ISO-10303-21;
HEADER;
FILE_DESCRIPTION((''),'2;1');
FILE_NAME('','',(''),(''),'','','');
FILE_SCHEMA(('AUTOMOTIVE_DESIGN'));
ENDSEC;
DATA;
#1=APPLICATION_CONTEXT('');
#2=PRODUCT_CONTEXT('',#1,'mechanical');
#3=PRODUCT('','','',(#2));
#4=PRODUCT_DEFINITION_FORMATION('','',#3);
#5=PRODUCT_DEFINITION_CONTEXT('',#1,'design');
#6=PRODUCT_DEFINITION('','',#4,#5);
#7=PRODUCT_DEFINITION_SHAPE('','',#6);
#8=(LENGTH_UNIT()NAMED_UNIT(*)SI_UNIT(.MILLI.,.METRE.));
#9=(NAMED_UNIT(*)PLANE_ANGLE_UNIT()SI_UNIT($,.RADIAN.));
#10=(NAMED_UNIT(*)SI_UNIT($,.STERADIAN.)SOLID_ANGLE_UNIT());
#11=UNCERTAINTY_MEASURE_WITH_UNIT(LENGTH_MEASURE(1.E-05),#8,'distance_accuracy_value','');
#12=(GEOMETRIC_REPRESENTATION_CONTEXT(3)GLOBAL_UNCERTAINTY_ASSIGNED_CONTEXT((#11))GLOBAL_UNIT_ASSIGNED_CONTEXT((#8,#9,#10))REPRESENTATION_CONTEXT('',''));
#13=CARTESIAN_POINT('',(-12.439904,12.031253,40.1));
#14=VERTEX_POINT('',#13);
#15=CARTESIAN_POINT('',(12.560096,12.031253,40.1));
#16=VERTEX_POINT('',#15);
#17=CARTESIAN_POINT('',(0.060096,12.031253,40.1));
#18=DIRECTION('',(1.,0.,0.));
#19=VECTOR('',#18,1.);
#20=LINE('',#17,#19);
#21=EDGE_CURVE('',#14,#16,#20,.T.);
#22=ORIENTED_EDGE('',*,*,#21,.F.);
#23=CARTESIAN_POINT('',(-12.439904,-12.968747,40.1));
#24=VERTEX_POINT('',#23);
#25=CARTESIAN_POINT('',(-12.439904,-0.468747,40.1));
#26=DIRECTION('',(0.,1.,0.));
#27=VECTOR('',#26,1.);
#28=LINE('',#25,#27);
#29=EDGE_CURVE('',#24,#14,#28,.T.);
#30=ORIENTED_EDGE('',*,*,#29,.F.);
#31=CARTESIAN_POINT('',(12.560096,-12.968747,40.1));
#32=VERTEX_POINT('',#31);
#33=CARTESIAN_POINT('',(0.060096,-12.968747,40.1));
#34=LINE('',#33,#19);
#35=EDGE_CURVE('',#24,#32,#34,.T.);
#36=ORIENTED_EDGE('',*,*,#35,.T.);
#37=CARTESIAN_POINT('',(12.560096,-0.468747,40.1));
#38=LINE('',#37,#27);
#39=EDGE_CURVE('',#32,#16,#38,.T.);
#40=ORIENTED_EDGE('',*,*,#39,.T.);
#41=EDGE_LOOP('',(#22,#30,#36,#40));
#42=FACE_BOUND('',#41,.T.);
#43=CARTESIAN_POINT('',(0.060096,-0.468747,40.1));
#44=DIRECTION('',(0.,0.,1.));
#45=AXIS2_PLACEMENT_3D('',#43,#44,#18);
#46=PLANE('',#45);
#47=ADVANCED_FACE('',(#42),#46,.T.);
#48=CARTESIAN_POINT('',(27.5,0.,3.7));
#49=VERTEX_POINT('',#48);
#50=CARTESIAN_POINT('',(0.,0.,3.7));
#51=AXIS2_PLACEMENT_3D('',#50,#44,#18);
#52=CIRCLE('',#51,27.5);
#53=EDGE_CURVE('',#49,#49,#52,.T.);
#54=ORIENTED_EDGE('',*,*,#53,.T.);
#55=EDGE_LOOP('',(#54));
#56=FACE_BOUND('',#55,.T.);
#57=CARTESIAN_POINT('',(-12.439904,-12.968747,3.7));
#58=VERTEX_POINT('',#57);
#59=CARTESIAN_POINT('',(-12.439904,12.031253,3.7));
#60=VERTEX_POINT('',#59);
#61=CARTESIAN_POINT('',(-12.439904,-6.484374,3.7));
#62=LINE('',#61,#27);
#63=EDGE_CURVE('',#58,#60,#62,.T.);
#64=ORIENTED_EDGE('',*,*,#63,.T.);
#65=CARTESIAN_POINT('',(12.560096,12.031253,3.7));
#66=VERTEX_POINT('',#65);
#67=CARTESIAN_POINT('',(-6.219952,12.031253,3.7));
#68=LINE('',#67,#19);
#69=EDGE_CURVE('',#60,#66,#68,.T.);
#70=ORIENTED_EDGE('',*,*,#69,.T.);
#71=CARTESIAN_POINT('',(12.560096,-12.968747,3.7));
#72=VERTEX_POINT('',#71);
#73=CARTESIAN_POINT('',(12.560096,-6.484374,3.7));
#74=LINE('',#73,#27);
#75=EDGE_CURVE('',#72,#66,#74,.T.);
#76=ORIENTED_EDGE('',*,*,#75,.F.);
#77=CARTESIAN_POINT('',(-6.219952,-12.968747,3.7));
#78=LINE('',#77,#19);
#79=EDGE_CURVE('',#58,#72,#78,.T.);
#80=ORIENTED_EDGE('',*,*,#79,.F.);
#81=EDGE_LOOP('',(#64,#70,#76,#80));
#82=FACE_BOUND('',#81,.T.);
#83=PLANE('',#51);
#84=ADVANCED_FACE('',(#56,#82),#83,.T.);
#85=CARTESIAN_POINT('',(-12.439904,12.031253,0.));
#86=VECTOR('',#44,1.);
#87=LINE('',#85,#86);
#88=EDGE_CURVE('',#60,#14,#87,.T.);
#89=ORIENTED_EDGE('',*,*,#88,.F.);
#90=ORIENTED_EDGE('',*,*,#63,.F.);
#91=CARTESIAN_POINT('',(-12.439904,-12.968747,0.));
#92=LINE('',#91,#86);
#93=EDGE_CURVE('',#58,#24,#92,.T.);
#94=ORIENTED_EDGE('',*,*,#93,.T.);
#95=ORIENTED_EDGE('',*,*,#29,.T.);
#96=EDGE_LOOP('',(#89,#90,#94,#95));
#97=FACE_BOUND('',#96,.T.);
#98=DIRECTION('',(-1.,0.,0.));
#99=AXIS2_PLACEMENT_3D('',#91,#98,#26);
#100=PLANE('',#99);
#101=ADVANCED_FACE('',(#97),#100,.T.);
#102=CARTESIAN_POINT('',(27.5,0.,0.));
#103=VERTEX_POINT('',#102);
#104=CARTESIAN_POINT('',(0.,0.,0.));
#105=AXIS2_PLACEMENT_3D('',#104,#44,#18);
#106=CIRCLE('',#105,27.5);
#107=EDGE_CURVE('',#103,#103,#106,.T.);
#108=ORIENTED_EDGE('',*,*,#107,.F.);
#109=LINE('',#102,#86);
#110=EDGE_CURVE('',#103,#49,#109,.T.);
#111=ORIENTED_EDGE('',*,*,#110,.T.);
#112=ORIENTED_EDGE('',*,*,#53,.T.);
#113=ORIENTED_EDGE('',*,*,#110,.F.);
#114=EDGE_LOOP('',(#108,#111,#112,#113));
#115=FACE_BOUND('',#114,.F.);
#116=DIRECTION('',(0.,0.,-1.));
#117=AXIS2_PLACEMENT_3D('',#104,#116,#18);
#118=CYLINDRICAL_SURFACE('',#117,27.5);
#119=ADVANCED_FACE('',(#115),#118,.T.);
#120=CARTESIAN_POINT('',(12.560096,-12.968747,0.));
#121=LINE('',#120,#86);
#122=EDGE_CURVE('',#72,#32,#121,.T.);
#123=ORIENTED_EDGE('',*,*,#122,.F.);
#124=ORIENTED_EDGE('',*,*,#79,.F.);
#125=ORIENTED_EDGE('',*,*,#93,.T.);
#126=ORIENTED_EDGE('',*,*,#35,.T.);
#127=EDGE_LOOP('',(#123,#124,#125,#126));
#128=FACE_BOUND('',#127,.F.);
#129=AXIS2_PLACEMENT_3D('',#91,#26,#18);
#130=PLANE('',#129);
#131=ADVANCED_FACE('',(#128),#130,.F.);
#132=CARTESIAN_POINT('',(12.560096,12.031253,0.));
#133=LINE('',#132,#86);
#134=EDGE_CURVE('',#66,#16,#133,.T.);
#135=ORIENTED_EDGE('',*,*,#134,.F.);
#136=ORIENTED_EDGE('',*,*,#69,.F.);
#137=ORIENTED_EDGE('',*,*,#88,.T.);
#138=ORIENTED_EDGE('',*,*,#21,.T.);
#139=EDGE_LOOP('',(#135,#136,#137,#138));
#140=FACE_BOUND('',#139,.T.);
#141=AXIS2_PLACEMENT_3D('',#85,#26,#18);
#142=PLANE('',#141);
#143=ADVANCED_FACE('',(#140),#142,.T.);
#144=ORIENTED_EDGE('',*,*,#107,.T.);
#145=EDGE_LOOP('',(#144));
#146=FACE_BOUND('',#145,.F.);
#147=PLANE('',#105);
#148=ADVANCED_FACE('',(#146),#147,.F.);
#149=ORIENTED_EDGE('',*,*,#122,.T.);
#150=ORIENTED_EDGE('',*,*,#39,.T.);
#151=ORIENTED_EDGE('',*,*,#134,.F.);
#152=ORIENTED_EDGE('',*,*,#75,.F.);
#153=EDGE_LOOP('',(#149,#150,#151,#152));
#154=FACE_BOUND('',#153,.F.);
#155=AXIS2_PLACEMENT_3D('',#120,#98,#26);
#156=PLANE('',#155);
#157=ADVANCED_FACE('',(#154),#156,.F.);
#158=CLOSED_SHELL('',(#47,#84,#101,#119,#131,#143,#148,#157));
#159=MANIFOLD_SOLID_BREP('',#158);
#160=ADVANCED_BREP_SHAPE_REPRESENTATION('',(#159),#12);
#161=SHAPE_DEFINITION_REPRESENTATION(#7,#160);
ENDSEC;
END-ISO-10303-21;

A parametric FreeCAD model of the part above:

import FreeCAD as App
import Part
import Sketcher
from FreeCAD import Vector
Q = App.Units.Quantity


def add_polygon(sketch, points):
    """Adds a closed chain of lines whose ends are joined by coincident constraints."""
    first, n = sketch.GeometryCount, len(points)
    for a, b in zip(points, points[1:] + points[:1]):
        sketch.addGeometry(Part.LineSegment(App.Vector(*a, 0), App.Vector(*b, 0)), False)
    for i in range(n):
        sketch.addConstraint(Sketcher.Constraint("Coincident", first + i, 2, first + (i + 1) % n, 1))

doc = App.newDocument("Part")
body = doc.addObject("PartDesign::Body", "Body")

# Sketch on XY plane
sketch1 = doc.addObject("Sketcher::SketchObject", "Sketch")
body.addObject(sketch1)
sketch1.AttachmentSupport = (doc.XY_Plane, [""])
sketch1.MapMode = "FlatFace"
add_polygon(sketch1, [(-12, 12), (-12, -13), (13, -13), (13, 12)])  # lines 0-3
sketch1.addConstraint(Sketcher.Constraint("Vertical", 0))
sketch1.addConstraint(Sketcher.Constraint("Horizontal", 1))
sketch1.addConstraint(Sketcher.Constraint("Vertical", 2))
sketch1.addConstraint(Sketcher.Constraint("Horizontal", 3))
sketch1.addConstraint(Sketcher.Constraint("Equal", 3, 0))
sketch1.addConstraint(Sketcher.Constraint("DistanceX", 1, 1, 1, 2, Q("25 mm")))
sketch1.addConstraint(Sketcher.Constraint("DistanceX", 0, 2, -1, 1, Q("12.439904 mm")))
sketch1.addConstraint(Sketcher.Constraint("DistanceY", 0, 2, -1, 1, Q("12.968747 mm")))
pad1 = doc.addObject("PartDesign::Pad", "Pad")
body.addObject(pad1)
pad1.Profile = sketch1
pad1.Length = 40.1

# Sketch on XY plane
sketch2 = doc.addObject("Sketcher::SketchObject", "Sketch001")
body.addObject(sketch2)
sketch2.AttachmentSupport = (doc.XY_Plane, [""])
sketch2.MapMode = "FlatFace"
sketch2.addGeometry(Part.Circle(Vector(0, 0, 0), Vector(0, 0, 1), 28), False)
sketch2.addConstraint(Sketcher.Constraint("Coincident", 0, 3, -1, 1))
sketch2.addConstraint(Sketcher.Constraint("Diameter", 0, Q("55 mm")))
pad2 = doc.addObject("PartDesign::Pad", "Pad001")
body.addObject(pad2)
pad2.Profile = sketch2
pad2.Length = 3.7

doc.recompute()
